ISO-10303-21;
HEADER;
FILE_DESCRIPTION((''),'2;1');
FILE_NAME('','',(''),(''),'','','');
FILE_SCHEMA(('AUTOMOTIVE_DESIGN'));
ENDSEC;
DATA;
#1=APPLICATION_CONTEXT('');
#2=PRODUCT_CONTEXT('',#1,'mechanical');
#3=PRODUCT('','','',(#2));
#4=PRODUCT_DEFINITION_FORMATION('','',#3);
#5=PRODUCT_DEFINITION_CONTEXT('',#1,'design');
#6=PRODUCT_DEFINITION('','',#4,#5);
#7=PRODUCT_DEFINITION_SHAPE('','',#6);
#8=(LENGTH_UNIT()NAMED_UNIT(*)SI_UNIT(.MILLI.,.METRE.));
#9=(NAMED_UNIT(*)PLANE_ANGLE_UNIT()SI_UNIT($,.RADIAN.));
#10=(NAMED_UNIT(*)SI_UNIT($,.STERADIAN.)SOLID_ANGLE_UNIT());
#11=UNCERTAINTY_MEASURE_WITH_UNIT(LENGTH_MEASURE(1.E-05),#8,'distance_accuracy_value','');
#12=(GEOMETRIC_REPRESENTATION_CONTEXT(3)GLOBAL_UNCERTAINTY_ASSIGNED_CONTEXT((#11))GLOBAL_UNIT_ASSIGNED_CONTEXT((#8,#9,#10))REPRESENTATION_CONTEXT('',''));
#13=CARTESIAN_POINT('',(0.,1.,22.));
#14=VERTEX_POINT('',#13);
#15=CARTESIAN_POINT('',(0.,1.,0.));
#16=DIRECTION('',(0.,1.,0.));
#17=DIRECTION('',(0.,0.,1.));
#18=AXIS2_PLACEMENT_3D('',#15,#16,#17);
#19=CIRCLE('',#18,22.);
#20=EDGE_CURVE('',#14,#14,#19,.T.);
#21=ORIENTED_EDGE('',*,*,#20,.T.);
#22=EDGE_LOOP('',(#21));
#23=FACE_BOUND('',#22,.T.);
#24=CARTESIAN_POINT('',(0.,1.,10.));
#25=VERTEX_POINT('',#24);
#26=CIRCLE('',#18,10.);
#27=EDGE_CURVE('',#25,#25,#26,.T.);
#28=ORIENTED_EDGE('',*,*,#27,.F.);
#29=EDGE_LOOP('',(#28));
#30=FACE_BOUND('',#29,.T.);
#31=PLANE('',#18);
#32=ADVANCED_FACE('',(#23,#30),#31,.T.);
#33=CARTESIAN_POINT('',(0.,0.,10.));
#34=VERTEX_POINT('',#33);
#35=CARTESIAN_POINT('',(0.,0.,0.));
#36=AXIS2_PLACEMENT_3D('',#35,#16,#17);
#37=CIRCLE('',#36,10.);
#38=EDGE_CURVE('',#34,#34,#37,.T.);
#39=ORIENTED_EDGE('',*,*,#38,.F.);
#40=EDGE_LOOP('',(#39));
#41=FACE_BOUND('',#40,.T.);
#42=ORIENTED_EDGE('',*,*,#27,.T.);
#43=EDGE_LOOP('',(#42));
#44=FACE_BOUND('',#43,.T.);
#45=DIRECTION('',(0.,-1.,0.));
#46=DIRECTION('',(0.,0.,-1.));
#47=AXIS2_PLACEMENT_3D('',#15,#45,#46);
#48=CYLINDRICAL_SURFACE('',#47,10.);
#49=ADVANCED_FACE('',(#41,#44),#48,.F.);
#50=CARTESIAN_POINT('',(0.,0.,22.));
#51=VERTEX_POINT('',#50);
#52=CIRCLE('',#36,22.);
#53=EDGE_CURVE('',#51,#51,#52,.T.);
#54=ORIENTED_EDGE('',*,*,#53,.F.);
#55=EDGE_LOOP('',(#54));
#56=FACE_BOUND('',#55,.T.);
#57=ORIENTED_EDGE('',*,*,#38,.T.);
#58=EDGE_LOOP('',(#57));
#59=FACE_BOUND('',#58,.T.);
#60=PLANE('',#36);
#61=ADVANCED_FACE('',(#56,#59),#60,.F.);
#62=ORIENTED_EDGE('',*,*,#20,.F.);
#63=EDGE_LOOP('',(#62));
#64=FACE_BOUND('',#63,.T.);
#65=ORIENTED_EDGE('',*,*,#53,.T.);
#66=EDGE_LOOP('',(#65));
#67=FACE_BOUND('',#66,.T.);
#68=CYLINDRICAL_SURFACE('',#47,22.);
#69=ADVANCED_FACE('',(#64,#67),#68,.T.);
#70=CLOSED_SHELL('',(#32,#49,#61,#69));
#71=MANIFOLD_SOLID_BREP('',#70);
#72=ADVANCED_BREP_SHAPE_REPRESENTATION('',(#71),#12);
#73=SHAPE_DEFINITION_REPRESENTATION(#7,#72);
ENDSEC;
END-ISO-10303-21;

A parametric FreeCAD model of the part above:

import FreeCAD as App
import Part
import Sketcher
from FreeCAD import Vector
Q = App.Units.Quantity

doc = App.newDocument("Part")
params = doc.addObject("Spreadsheet::Sheet", "Params")
for row, (alias, value) in enumerate([
    ("sketch1_diameter", "44 mm"),
    ("sketch1_diameter2", "20 mm"),
    ("pad1_length", "1 mm"),
], start=1):
    params.set(f"A{row}", alias)
    params.set(f"B{row}", "=" + value)
    params.setAlias(f"B{row}", alias)

body = doc.addObject("PartDesign::Body", "Body")

sketch1 = body.newObject("Sketcher::SketchObject", "Sketch")
sketch1.AttachmentSupport = (doc.getObject("XZ_Plane"), [""])
sketch1.MapMode = "FlatFace"
sketch1.addGeometry([
    Part.Circle(Vector(0, 0, 0), Vector(0, 0, 1), 22),
    Part.Circle(Vector(0, 0, 0), Vector(0, 0, 1), 10),
], False)
sketch1.addConstraint([
    Sketcher.Constraint("Coincident", 0, 3, -1, 1),
    Sketcher.Constraint("Coincident", 1, 3, -1, 1),
    Sketcher.Constraint("Diameter", 0, Q("44 mm")),
    Sketcher.Constraint("Diameter", 1, Q("20 mm")),
])
sketch1.setExpression("Constraints[2]", "Params.sketch1_diameter")
sketch1.setExpression("Constraints[3]", "Params.sketch1_diameter2")
pad1 = body.newObject("PartDesign::Pad", "Pad")
pad1.Profile = sketch1
pad1.setExpression("Length", "Params.pad1_length")
pad1.Reversed = True

doc.recompute()
